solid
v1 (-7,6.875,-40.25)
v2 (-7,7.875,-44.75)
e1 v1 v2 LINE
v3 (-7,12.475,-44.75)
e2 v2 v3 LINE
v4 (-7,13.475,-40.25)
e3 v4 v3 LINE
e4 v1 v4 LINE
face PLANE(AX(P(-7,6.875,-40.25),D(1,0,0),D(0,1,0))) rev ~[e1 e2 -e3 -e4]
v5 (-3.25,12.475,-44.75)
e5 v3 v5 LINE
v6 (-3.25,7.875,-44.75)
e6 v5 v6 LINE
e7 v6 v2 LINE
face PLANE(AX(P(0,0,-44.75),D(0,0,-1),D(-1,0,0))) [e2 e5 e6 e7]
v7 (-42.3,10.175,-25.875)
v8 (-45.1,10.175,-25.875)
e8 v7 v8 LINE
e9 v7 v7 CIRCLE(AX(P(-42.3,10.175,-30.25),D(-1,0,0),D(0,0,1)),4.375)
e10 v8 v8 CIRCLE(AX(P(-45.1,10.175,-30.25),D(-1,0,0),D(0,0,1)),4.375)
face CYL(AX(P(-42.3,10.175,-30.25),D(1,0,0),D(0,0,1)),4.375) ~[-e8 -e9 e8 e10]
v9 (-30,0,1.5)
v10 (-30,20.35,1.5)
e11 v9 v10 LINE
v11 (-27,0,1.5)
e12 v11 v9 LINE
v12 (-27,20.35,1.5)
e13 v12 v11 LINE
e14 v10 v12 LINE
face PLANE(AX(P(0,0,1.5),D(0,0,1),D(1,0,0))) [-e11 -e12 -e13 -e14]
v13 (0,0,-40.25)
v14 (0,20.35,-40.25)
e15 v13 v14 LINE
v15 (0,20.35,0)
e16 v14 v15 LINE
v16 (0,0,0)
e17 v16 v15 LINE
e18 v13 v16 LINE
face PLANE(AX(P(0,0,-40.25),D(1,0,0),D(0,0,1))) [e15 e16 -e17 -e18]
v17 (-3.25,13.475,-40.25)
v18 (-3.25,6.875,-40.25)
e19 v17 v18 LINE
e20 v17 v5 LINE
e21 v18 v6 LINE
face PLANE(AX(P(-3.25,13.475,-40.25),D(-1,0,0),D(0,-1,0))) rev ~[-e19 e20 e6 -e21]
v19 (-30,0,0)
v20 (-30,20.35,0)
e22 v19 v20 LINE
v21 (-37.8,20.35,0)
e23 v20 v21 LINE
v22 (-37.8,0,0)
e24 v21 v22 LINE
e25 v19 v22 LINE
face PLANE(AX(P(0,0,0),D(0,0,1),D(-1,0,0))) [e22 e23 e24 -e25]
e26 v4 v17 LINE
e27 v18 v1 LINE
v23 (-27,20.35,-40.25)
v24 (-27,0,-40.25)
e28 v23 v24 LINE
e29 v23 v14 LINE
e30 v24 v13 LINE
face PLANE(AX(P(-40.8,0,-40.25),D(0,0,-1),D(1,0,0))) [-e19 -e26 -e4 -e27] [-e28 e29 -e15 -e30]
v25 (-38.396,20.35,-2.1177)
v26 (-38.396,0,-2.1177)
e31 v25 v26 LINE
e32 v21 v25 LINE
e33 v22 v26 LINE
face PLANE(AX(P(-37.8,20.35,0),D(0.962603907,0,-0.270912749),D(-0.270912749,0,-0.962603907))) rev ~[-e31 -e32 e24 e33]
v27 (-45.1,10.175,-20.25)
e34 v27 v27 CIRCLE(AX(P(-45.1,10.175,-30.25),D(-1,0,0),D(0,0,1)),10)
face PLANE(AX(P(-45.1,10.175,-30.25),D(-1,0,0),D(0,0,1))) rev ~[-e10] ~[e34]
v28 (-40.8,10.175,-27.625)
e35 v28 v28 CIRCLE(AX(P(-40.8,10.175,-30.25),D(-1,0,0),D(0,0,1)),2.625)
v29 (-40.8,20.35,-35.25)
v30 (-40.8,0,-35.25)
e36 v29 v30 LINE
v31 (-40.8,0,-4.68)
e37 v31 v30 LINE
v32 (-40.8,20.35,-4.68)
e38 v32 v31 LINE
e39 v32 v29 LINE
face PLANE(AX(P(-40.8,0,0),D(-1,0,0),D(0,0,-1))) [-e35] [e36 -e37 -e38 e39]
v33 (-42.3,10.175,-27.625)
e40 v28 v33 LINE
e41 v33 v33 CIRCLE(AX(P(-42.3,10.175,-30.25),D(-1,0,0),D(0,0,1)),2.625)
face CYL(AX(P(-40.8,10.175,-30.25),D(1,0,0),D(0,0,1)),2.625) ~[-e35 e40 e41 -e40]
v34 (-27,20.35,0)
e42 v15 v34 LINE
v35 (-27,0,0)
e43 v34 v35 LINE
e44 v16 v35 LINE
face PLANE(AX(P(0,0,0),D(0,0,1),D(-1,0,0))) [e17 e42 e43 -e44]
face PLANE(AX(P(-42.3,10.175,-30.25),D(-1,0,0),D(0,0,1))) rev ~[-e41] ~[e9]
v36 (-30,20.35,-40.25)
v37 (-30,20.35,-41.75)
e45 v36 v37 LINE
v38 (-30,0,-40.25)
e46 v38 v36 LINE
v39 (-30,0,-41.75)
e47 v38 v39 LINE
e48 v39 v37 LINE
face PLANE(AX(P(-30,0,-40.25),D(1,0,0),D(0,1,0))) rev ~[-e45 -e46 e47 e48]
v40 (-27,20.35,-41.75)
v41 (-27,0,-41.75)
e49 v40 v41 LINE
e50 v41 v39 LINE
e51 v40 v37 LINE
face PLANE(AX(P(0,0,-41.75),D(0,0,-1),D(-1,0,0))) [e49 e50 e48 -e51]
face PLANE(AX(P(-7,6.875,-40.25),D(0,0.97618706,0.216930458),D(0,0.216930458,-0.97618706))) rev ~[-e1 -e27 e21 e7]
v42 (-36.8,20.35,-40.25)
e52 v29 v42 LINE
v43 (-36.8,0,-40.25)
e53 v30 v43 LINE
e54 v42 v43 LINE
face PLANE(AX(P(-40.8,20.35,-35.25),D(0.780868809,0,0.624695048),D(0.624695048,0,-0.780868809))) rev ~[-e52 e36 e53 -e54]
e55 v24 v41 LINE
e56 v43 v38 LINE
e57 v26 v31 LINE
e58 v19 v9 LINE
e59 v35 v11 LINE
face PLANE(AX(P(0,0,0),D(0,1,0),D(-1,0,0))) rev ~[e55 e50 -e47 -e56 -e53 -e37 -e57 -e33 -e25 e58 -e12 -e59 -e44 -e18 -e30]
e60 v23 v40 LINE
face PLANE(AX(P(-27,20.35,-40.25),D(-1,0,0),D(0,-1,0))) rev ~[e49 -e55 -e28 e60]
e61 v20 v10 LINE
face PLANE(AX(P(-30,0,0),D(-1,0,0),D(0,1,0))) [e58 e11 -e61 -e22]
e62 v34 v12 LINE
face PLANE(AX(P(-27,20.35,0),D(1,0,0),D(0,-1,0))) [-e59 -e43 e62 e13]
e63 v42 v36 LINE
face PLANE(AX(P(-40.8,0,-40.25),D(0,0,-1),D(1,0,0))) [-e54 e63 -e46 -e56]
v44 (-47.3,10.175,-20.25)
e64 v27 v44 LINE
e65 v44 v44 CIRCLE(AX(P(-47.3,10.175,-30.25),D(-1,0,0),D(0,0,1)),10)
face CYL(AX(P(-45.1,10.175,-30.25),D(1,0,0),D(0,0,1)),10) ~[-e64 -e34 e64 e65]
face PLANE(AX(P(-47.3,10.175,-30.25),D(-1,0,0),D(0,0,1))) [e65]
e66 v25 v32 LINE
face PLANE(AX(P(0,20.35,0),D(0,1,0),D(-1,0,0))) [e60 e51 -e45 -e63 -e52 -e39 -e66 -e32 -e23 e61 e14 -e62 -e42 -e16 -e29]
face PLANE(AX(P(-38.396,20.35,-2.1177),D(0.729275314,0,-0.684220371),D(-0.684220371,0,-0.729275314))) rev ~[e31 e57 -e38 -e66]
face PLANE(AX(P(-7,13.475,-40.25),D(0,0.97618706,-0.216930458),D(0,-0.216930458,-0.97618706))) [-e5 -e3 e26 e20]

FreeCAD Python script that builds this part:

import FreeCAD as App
import Part
import Sketcher


def edges_at(feature, points):
    """Names of the edges that pass closest to the given points."""
    edges = feature.Shape.Edges
    near = lambda p: min(range(len(edges)), key=lambda i: edges[i].distToShape(Part.Vertex(*p))[0])
    return sorted({f"Edge{near(p) + 1}" for p in points})


def add_polygon(sketch, points):
    """Adds a closed chain of lines whose ends are joined by coincident constraints."""
    first, n = sketch.GeometryCount, len(points)
    for a, b in zip(points, points[1:] + points[:1]):
        sketch.addGeometry(Part.LineSegment(App.Vector(*a, 0), App.Vector(*b, 0)), False)
    for i in range(n):
        sketch.addConstraint(Sketcher.Constraint("Coincident", first + i, 2, first + (i + 1) % n, 1))

doc = App.newDocument("Part")
body = doc.addObject("PartDesign::Body", "Body")

# Sketch on XZ plane
sketch1 = body.newObject("Sketcher::SketchObject", "Sketch")
sketch1.AttachmentSupport = (doc.getObject("XZ_Plane"), [""])
sketch1.MapMode = "FlatFace"
add_polygon(sketch1, [(-41, 0), (0, 0), (0, -40), (-41, -40)])  # lines 0-3
sketch1.addConstraint(Sketcher.Constraint("Horizontal", 0))
sketch1.addConstraint(Sketcher.Constraint("Vertical", 1))
sketch1.addConstraint(Sketcher.Constraint("Horizontal", 2))
sketch1.addConstraint(Sketcher.Constraint("Vertical", 3))
sketch1.addConstraint(Sketcher.Constraint("Coincident", 0, 2, -1, 1))
sketch1.addConstraint(Sketcher.Constraint("DistanceX", 0, 1, 0, 2, 40.8))
sketch1.addConstraint(Sketcher.Constraint("DistanceY", 1, 2, 1, 1, 40.25))
pad1 = body.newObject("PartDesign::Pad", "Pad")
pad1.Profile = sketch1
pad1.Length = 20.35
pad1.Reversed = True

# Sketch on XZ plane
sketch2 = body.newObject("Sketcher::SketchObject", "Sketch001")
sketch2.AttachmentSupport = (doc.getObject("XZ_Plane"), [""])
sketch2.MapMode = "FlatFace"
sketch2.AttachmentOffset = App.Placement(App.Vector(0, 0, -20.35), App.Rotation())
add_polygon(sketch2, [(-40.8, -4.7), (-40.8, 0), (-37.8, 0), (-38.4, -2.1)])  # lines 0-3
sketch2.addConstraint(Sketcher.Constraint("Vertical", 0))
sketch2.addConstraint(Sketcher.Constraint("Horizontal", 1))
sketch2.addConstraint(Sketcher.Constraint("PointOnObject", 0, 2, -1))
sketch2.addConstraint(Sketcher.Constraint("DistanceX", 1, 1, 1, 2, 3.0))
sketch2.addConstraint(Sketcher.Constraint("Distance", 2, 2.2))
sketch2.addConstraint(Sketcher.Constraint("DistanceY", 0, 1, 0, 2, 4.68))
sketch2.addConstraint(Sketcher.Constraint("DistanceX", 0, 2, -1, 1, 40.8))
sketch2.addConstraint(Sketcher.Constraint("DistanceX", 2, 2, -1, 1, 38.396))
pocket1 = body.newObject("PartDesign::Pocket", "Pocket")
pocket1.Profile = sketch2
pocket1.Length = 20.35
pocket1.Reversed = True

# Sketch on XZ plane
sketch3 = body.newObject("Sketcher::SketchObject", "Sketch002")
sketch3.AttachmentSupport = (doc.getObject("XZ_Plane"), [""])
sketch3.MapMode = "FlatFace"
sketch3.AttachmentOffset = App.Placement(App.Vector(0, 0, -20.35), App.Rotation())
add_polygon(sketch3, [(-40.8, -40.2), (-40.8, -35.2), (-36.8, -40.2)])  # lines 0-2
sketch3.addConstraint(Sketcher.Constraint("Vertical", 0))
sketch3.addConstraint(Sketcher.Constraint("Horizontal", 2))
sketch3.addConstraint(Sketcher.Constraint("DistanceX", 2, 2, 2, 1, 4.0))
sketch3.addConstraint(Sketcher.Constraint("DistanceY", 0, 1, 0, 2, 5.0))
sketch3.addConstraint(Sketcher.Constraint("DistanceX", 0, 2, -1, 1, 40.8))
sketch3.addConstraint(Sketcher.Constraint("DistanceY", 0, 2, -1, 1, 35.25))
pocket2 = body.newObject("PartDesign::Pocket", "Pocket001")
pocket2.Profile = sketch3
pocket2.Length = 20.35
pocket2.Reversed = True

# Sketch on YZ plane
sketch4 = body.newObject("Sketcher::SketchObject", "Sketch003")
sketch4.AttachmentSupport = (doc.getObject("YZ_Plane"), [""])
sketch4.MapMode = "FlatFace"
sketch4.AttachmentOffset = App.Placement(App.Vector(0, 0, -40.8), App.Rotation())
sketch4.addGeometry(Part.Circle(App.Vector(10.2, -30.2, 0), App.Vector(0, 0, 1), 2.6), False)
sketch4.addConstraint(Sketcher.Constraint("Diameter", 0, 5.25))
sketch4.addConstraint(Sketcher.Constraint("DistanceX", -1, 1, 0, 3, 10.175))
sketch4.addConstraint(Sketcher.Constraint("DistanceY", 0, 3, -1, 1, 30.25))
pad2 = body.newObject("PartDesign::Pad", "Pad001")
pad2.Profile = sketch4
pad2.Length = 1.5
pad2.Reversed = True

# Sketch on YZ plane
sketch5 = body.newObject("Sketcher::SketchObject", "Sketch004")
sketch5.AttachmentSupport = (doc.getObject("YZ_Plane"), [""])
sketch5.MapMode = "FlatFace"
sketch5.AttachmentOffset = App.Placement(App.Vector(0, 0, -42.3), App.Rotation())
sketch5.addGeometry(Part.Circle(App.Vector(10.2, -30.2, 0), App.Vector(0, 0, 1), 4.4), False)
sketch5.addConstraint(Sketcher.Constraint("Diameter", 0, 8.75))
sketch5.addConstraint(Sketcher.Constraint("DistanceY", 0, 3, -1, 1, 30.25))
sketch5.addConstraint(Sketcher.Constraint("DistanceX", -1, 1, 0, 3, 10.175))
pad3 = body.newObject("PartDesign::Pad", "Pad002")
pad3.Profile = sketch5
pad3.Length = 2.8
pad3.Reversed = True

# Sketch on YZ plane
sketch6 = body.newObject("Sketcher::SketchObject", "Sketch005")
sketch6.AttachmentSupport = (doc.getObject("YZ_Plane"), [""])
sketch6.MapMode = "FlatFace"
sketch6.AttachmentOffset = App.Placement(App.Vector(0, 0, -45.1), App.Rotation())
sketch6.addGeometry(Part.Circle(App.Vector(10, -30, 0), App.Vector(0, 0, 1), 10), False)
sketch6.addConstraint(Sketcher.Constraint("Diameter", 0, 20.0))
sketch6.addConstraint(Sketcher.Constraint("DistanceY", 0, 3, -1, 1, 30.25))
sketch6.addConstraint(Sketcher.Constraint("DistanceX", -1, 1, 0, 3, 10.175))
pad4 = body.newObject("PartDesign::Pad", "Pad003")
pad4.Profile = sketch6
pad4.Length = 2.2
pad4.Reversed = True

# Sketch on XY plane
sketch7 = body.newObject("Sketcher::SketchObject", "Sketch006")
sketch7.AttachmentSupport = (doc.getObject("XY_Plane"), [""])
sketch7.MapMode = "FlatFace"
add_polygon(sketch7, [(-7, 13.5), (-7, 6.9), (-3.2, 6.9), (-3.2, 13.5)])  # lines 0-3
sketch7.addConstraint(Sketcher.Constraint("Vertical", 0))
sketch7.addConstraint(Sketcher.Constraint("Horizontal", 1))
sketch7.addConstraint(Sketcher.Constraint("Vertical", 2))
sketch7.addConstraint(Sketcher.Constraint("Horizontal", 3))
sketch7.addConstraint(Sketcher.Constraint("DistanceY", 0, 2, 0, 1, 6.6))
sketch7.addConstraint(Sketcher.Constraint("DistanceX", 0, 2, -1, 1, 7.0))
sketch7.addConstraint(Sketcher.Constraint("DistanceX", 1, 1, 1, 2, 3.75))
sketch7.addConstraint(Sketcher.Constraint("DistanceY", -1, 1, 0, 2, 6.875))
pad5 = body.newObject("PartDesign::Pad", "Pad004")
pad5.Profile = sketch7
pad5.Length = 4.5
doc.recompute()

chamfer = body.newObject("PartDesign::Chamfer", "Chamfer")
chamfer.Base = (pad5, edges_at(pad5, [(-5.125, 13.475, 4.5), (-5.125, 6.875, 4.5)]))
chamfer.Size = 2

# Sketch on YZ plane
sketch8 = body.newObject("Sketcher::SketchObject", "Sketch007")
sketch8.AttachmentSupport = (doc.getObject("YZ_Plane"), [""])
sketch8.MapMode = "FlatFace"
sketch8.AttachmentOffset = App.Placement(App.Vector(0, 0, -7), App.Rotation())
add_polygon(sketch8, [(13.5, 2.5), (13.5, 0), (6.9, 0), (6.9, 2.5), (8.9, 4.5), (11.5, 4.5)])  # lines 0-5
sketch8.addConstraint(Sketcher.Constraint("Vertical", 0))
sketch8.addConstraint(Sketcher.Constraint("Horizontal", 1))
sketch8.addConstraint(Sketcher.Constraint("Vertical", 2))
sketch8.addConstraint(Sketcher.Constraint("Horizontal", 4))
sketch8.addConstraint(Sketcher.Constraint("PointOnObject", 0, 2, -1))
sketch8.addConstraint(Sketcher.Constraint("Perpendicular", 3, 5))
sketch8.addConstraint(Sketcher.Constraint("Horizontal", 2, 2, 5, 2))
sketch8.addConstraint(Sketcher.Constraint("Equal", 3, 5))
sketch8.addConstraint(Sketcher.Constraint("DistanceX", 1, 2, 1, 1, 6.6))
sketch8.addConstraint(Sketcher.Constraint("DistanceX", 4, 1, 4, 2, 2.6))
sketch8.addConstraint(Sketcher.Constraint("DistanceY", 0, 2, 0, 1, 2.5))
sketch8.addConstraint(Sketcher.Constraint("DistanceX", -1, 1, 0, 2, 13.475))
pocket3 = body.newObject("PartDesign::Pocket", "Pocket002")
pocket3.Profile = sketch8
pocket3.Length = 4.5
pocket3.Reversed = True

# Sketch on XY plane
sketch9 = body.newObject("Sketcher::SketchObject", "Sketch008")
sketch9.AttachmentSupport = (doc.getObject("XY_Plane"), [""])
sketch9.MapMode = "FlatFace"
sketch9.AttachmentOffset = App.Placement(App.Vector(0, 0, -40.25), App.Rotation())
add_polygon(sketch9, [(-3.2, 13.5), (-3.2, 6.9), (-7, 6.9), (-7, 13.5)])  # lines 0-3
sketch9.addConstraint(Sketcher.Constraint("Vertical", 0))
sketch9.addConstraint(Sketcher.Constraint("Horizontal", 1))
sketch9.addConstraint(Sketcher.Constraint("Vertical", 2))
sketch9.addConstraint(Sketcher.Constraint("Horizontal", 3))
sketch9.addConstraint(Sketcher.Constraint("DistanceY", 0, 2, 0, 1, 6.6))
sketch9.addConstraint(Sketcher.Constraint("DistanceX", 1, 2, -1, 1, 7.0))
sketch9.addConstraint(Sketcher.Constraint("DistanceX", 1, 2, 1, 1, 3.75))
sketch9.addConstraint(Sketcher.Constraint("DistanceY", -1, 1, 0, 2, 6.875))
pad6 = body.newObject("PartDesign::Pad", "Pad005")
pad6.Profile = sketch9
pad6.Length = 4.5
pad6.Reversed = True
doc.recompute()

chamfer2 = body.newObject("PartDesign::Chamfer", "Chamfer001")
chamfer2.Base = (pad6, edges_at(pad6, [(-5.125, 6.875, -44.75), (-5.125, 13.475, -44.75)]))
chamfer2.Size = 1

# Sketch on YZ plane
sketch10 = body.newObject("Sketcher::SketchObject", "Sketch009")
sketch10.AttachmentSupport = (doc.getObject("YZ_Plane"), [""])
sketch10.MapMode = "FlatFace"
sketch10.AttachmentOffset = App.Placement(App.Vector(0, 0, -7), App.Rotation())
add_polygon(sketch10, [(6.9, -43.8), (6.9, -40.2), (7.9, -44.8)])  # lines 0-2
add_polygon(sketch10, [(12.5, -44.8), (13.5, -40.2), (13.5, -43.8)])  # lines 3-5
sketch10.addConstraint(Sketcher.Constraint("Vertical", 0))
sketch10.addConstraint(Sketcher.Constraint("Vertical", 4))
sketch10.addConstraint(Sketcher.Constraint("Perpendicular", 2, 5))
sketch10.addConstraint(Sketcher.Constraint("Horizontal", 0, 2, 3, 2))
sketch10.addConstraint(Sketcher.Constraint("Horizontal", 2, 2, 4, 2))
sketch10.addConstraint(Sketcher.Constraint("Horizontal", 1, 2, 5, 2))
sketch10.addConstraint(Sketcher.Constraint("Equal", 1, 3))
sketch10.addConstraint(Sketcher.Constraint("DistanceY", 0, 1, 0, 2, 3.5))
sketch10.addConstraint(Sketcher.Constraint("DistanceX", 0, 2, 1, 2, 1.0))
sketch10.addConstraint(Sketcher.Constraint("DistanceX", 0, 2, 3, 2, 6.6))
sketch10.addConstraint(Sketcher.Constraint("DistanceY", 0, 2, -1, 1, 40.25))
sketch10.addConstraint(Sketcher.Constraint("DistanceX", -1, 1, 0, 2, 6.875))
pocket4 = body.newObject("PartDesign::Pocket", "Pocket003")
pocket4.Profile = sketch10
pocket4.Length = 4.5
pocket4.Reversed = True

# Sketch on XY plane
sketch11 = body.newObject("Sketcher::SketchObject", "Sketch010")
sketch11.AttachmentSupport = (doc.getObject("XY_Plane"), [""])
sketch11.MapMode = "FlatFace"
sketch11.AttachmentOffset = App.Placement(App.Vector(0, 0, -40.25), App.Rotation())
add_polygon(sketch11, [(-30, 20.4), (-27, 20.4), (-27, 0), (-30, 0)])  # lines 0-3
sketch11.addConstraint(Sketcher.Constraint("Horizontal", 0))
sketch11.addConstraint(Sketcher.Constraint("Vertical", 1))
sketch11.addConstraint(Sketcher.Constraint("Horizontal", 2))
sketch11.addConstraint(Sketcher.Constraint("Vertical", 3))
sketch11.addConstraint(Sketcher.Constraint("PointOnObject", 1, 2, -1))
sketch11.addConstraint(Sketcher.Constraint("DistanceX", 0, 1, 0, 2, 3.0))
sketch11.addConstraint(Sketcher.Constraint("DistanceX", 0, 2, -1, 1, 27.0))
sketch11.addConstraint(Sketcher.Constraint("DistanceY", 1, 2, 1, 1, 20.35))
pad7 = body.newObject("PartDesign::Pad", "Pad006")
pad7.Profile = sketch11
pad7.Length = 1.5
pad7.Reversed = True

# Sketch on XY plane
sketch12 = body.newObject("Sketcher::SketchObject", "Sketch011")
sketch12.AttachmentSupport = (doc.getObject("XY_Plane"), [""])
sketch12.MapMode = "FlatFace"
add_polygon(sketch12, [(-30, 0), (-27, 0), (-27, 20.4), (-30, 20.4)])  # lines 0-3
sketch12.addConstraint(Sketcher.Constraint("Horizontal", 0))
sketch12.addConstraint(Sketcher.Constraint("Vertical", 1))
sketch12.addConstraint(Sketcher.Constraint("Horizontal", 2))
sketch12.addConstraint(Sketcher.Constraint("Vertical", 3))
sketch12.addConstraint(Sketcher.Constraint("PointOnObject", 0, 2, -1))
sketch12.addConstraint(Sketcher.Constraint("DistanceX", 0, 1, 0, 2, 3.0))
sketch12.addConstraint(Sketcher.Constraint("DistanceX", 0, 2, -1, 1, 27.0))
sketch12.addConstraint(Sketcher.Constraint("DistanceY", 1, 1, 1, 2, 20.35))
pad8 = body.newObject("PartDesign::Pad", "Pad007")
pad8.Profile = sketch12
pad8.Length = 1.5

doc.recompute()
